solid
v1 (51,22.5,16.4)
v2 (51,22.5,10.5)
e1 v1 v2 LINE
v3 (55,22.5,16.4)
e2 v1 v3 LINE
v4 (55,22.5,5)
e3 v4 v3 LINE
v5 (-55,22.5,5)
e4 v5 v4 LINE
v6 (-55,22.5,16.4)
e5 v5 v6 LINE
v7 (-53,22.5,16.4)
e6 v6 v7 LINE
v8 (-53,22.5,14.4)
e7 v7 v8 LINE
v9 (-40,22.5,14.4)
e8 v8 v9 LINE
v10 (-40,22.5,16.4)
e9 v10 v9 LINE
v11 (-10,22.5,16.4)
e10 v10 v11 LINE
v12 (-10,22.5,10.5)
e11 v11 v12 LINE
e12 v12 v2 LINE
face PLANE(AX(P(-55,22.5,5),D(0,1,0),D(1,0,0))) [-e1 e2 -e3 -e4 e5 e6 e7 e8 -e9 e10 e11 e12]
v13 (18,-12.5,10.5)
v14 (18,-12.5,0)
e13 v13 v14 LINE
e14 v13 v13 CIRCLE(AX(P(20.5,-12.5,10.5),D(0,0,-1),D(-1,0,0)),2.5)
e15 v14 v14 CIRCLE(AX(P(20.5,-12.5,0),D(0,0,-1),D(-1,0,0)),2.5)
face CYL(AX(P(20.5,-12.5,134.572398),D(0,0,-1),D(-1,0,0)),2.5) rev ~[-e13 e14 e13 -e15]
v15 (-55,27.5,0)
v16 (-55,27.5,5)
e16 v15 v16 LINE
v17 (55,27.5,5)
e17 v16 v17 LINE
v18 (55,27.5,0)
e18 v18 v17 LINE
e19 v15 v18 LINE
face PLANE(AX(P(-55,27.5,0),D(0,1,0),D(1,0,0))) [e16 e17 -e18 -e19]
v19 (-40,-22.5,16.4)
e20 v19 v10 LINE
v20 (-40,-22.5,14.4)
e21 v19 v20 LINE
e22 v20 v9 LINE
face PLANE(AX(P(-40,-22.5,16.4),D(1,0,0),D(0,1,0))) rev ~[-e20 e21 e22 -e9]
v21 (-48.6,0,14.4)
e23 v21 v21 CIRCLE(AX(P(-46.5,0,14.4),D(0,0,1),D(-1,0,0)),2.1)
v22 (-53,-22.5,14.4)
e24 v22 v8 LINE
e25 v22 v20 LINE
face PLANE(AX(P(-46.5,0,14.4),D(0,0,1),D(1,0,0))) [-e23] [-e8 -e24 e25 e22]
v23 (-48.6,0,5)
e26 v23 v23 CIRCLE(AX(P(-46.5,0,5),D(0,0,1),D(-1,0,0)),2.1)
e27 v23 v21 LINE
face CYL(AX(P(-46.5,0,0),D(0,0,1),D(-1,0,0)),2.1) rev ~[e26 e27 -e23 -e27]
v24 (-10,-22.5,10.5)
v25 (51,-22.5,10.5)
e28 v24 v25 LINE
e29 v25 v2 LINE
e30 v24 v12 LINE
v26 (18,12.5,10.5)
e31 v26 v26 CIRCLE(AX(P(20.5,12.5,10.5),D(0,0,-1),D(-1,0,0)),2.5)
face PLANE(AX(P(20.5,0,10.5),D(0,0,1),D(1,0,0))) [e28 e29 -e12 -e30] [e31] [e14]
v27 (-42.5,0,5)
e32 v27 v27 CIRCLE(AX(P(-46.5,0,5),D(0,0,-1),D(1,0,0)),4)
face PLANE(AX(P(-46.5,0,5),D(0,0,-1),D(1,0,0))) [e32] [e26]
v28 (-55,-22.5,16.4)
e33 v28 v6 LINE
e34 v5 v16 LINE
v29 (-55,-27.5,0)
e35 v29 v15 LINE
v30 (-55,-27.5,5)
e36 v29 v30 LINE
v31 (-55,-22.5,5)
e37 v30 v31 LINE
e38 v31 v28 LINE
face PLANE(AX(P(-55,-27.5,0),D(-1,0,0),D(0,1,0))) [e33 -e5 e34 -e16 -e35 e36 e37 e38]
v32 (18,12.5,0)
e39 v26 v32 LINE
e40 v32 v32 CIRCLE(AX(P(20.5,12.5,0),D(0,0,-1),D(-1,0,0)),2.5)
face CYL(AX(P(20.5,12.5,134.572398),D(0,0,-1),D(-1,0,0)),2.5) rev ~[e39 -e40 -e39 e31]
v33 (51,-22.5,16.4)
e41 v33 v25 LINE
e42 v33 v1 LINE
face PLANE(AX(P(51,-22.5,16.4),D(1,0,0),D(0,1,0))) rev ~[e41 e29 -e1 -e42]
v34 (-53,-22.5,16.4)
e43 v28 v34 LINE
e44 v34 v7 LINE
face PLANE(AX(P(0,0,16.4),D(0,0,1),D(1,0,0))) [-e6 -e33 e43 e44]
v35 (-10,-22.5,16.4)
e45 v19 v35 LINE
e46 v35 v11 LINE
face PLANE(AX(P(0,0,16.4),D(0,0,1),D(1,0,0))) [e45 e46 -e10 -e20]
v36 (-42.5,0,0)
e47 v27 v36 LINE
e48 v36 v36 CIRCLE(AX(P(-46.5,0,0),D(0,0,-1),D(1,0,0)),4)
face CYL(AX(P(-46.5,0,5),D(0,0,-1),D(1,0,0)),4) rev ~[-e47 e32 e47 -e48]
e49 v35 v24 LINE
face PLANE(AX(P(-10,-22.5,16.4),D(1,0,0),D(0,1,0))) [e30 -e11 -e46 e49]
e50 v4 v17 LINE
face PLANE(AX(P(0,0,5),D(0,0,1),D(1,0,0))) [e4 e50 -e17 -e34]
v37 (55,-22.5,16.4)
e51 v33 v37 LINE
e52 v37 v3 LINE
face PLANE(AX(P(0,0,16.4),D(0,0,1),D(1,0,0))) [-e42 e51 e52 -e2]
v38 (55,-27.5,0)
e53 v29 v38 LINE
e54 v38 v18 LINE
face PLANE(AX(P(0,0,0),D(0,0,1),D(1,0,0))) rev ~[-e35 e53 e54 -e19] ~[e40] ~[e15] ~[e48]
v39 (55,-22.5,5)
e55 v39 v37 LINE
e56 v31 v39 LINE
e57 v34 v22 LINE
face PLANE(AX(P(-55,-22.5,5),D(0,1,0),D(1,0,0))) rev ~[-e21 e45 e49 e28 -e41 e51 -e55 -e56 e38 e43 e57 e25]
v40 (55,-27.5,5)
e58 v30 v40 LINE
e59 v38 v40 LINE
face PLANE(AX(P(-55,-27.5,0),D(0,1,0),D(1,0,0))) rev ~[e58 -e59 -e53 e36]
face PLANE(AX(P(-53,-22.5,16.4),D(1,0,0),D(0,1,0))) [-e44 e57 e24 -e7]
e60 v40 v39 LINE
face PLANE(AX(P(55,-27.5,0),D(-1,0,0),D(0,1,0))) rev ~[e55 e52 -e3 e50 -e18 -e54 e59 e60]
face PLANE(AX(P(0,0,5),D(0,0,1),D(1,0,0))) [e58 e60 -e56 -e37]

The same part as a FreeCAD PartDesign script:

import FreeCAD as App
import Part
import Sketcher


def add_polygon(sketch, points):
    """Adds a closed chain of lines whose ends are joined by coincident constraints."""
    first, n = sketch.GeometryCount, len(points)
    for a, b in zip(points, points[1:] + points[:1]):
        sketch.addGeometry(Part.LineSegment(App.Vector(*a, 0), App.Vector(*b, 0)), False)
    for i in range(n):
        sketch.addConstraint(Sketcher.Constraint("Coincident", first + i, 2, first + (i + 1) % n, 1))

doc = App.newDocument("Part")
params = doc.addObject("Spreadsheet::Sheet", "Params")
for row, (alias, value) in enumerate([
    ("sketch1_width", "110 mm"),
    ("sketch1_height", "55 mm"),
    ("pad1_length", "5 mm"),
    ("sketch2_width", "110 mm"),
    ("sketch2_height", "45 mm"),
    ("pad2_length", "11.4 mm"),
    ("sketch3_width", "13 mm"),
    ("sketch3_height", "45 mm"),
    ("pocket1_length", "2 mm"),
    ("sketch4_width", "61 mm"),
    ("sketch4_height", "45 mm"),
    ("pocket2_length", "5.9 mm"),
    ("sketch5_diameter", "4.2 mm"),
    ("hole_diameter", "4.2 mm"),
    ("hole_cbore_diameter", "8 mm"),
    ("hole_cbore_depth", "5 mm"),
    ("sketch6_diameter", "5 mm"),
    ("hole2_diameter", "5 mm"),
], start=1):
    params.set(f"A{row}", alias)
    params.set(f"B{row}", "=" + value)
    params.setAlias(f"B{row}", alias)

body = doc.addObject("PartDesign::Body", "Body")

sketch1 = doc.addObject("Sketcher::SketchObject", "Sketch")
body.addObject(sketch1)
sketch1.AttachmentSupport = (doc.XY_Plane, [""])
sketch1.MapMode = "FlatFace"
add_polygon(sketch1, [(-55, 28), (-55, -28), (55, -28), (55, 28)])
sketch1.addConstraint(Sketcher.Constraint("Vertical", 0))
sketch1.addConstraint(Sketcher.Constraint("Horizontal", 1))
sketch1.addConstraint(Sketcher.Constraint("Vertical", 2))
sketch1.addConstraint(Sketcher.Constraint("Horizontal", 3))
sketch1.addConstraint(Sketcher.Constraint("Symmetric", 0, 2, 2, 2, -1, 1))
sketch1.addConstraint(Sketcher.Constraint("DistanceX", 1, 1, 1, 2, 110.0))
sketch1.addConstraint(Sketcher.Constraint("DistanceY", 0, 2, 0, 1, 55.0))
sketch1.setExpression("Constraints[9]", "Params.sketch1_width")
sketch1.setExpression("Constraints[10]", "Params.sketch1_height")
pad1 = doc.addObject("PartDesign::Pad", "Pad")
body.addObject(pad1)
pad1.Profile = sketch1
pad1.setExpression("Length", "Params.pad1_length")

sketch2 = doc.addObject("Sketcher::SketchObject", "Sketch001")
body.addObject(sketch2)
sketch2.AttachmentSupport = (doc.XY_Plane, [""])
sketch2.MapMode = "FlatFace"
sketch2.AttachmentOffset = App.Placement(App.Vector(0, 0, 5), App.Rotation())
add_polygon(sketch2, [(-55, 22), (-55, -22), (55, -22), (55, 22)])
sketch2.addConstraint(Sketcher.Constraint("Vertical", 0))
sketch2.addConstraint(Sketcher.Constraint("Horizontal", 1))
sketch2.addConstraint(Sketcher.Constraint("Vertical", 2))
sketch2.addConstraint(Sketcher.Constraint("Horizontal", 3))
sketch2.addConstraint(Sketcher.Constraint("Symmetric", 0, 2, 2, 2, -1, 1))
sketch2.addConstraint(Sketcher.Constraint("DistanceX", 1, 1, 1, 2, 110.0))
sketch2.addConstraint(Sketcher.Constraint("DistanceY", 0, 2, 0, 1, 45.0))
sketch2.setExpression("Constraints[9]", "Params.sketch2_width")
sketch2.setExpression("Constraints[10]", "Params.sketch2_height")
pad2 = doc.addObject("PartDesign::Pad", "Pad001")
body.addObject(pad2)
pad2.Profile = sketch2
pad2.setExpression("Length", "Params.pad2_length")

sketch3 = doc.addObject("Sketcher::SketchObject", "Sketch002")
body.addObject(sketch3)
sketch3.AttachmentSupport = (doc.XY_Plane, [""])
sketch3.MapMode = "FlatFace"
sketch3.AttachmentOffset = App.Placement(App.Vector(0, 0, 16.4), App.Rotation())
add_polygon(sketch3, [(-53, 22), (-53, -22), (-40, -22), (-40, 22)])
sketch3.addConstraint(Sketcher.Constraint("Vertical", 0))
sketch3.addConstraint(Sketcher.Constraint("Horizontal", 1))
sketch3.addConstraint(Sketcher.Constraint("Vertical", 2))
sketch3.addConstraint(Sketcher.Constraint("Horizontal", 3))
sketch3.addConstraint(Sketcher.Constraint("DistanceX", 1, 1, 1, 2, 13.0))
sketch3.addConstraint(Sketcher.Constraint("DistanceY", 0, 2, 0, 1, 45.0))
sketch3.addConstraint(Sketcher.Constraint("DistanceX", 0, 2, -1, 1, 53.0))
sketch3.addConstraint(Sketcher.Constraint("DistanceY", 0, 2, -1, 1, 22.5))
sketch3.setExpression("Constraints[8]", "Params.sketch3_width")
sketch3.setExpression("Constraints[9]", "Params.sketch3_height")
pocket1 = doc.addObject("PartDesign::Pocket", "Pocket")
body.addObject(pocket1)
pocket1.Profile = sketch3
pocket1.setExpression("Length", "Params.pocket1_length")

sketch4 = doc.addObject("Sketcher::SketchObject", "Sketch003")
body.addObject(sketch4)
sketch4.AttachmentSupport = (doc.XY_Plane, [""])
sketch4.MapMode = "FlatFace"
sketch4.AttachmentOffset = App.Placement(App.Vector(0, 0, 16.4), App.Rotation())
add_polygon(sketch4, [(-10, 22), (-10, -22), (51, -22), (51, 22)])
sketch4.addConstraint(Sketcher.Constraint("Vertical", 0))
sketch4.addConstraint(Sketcher.Constraint("Horizontal", 1))
sketch4.addConstraint(Sketcher.Constraint("Vertical", 2))
sketch4.addConstraint(Sketcher.Constraint("Horizontal", 3))
sketch4.addConstraint(Sketcher.Constraint("DistanceX", 1, 1, 1, 2, 61.0))
sketch4.addConstraint(Sketcher.Constraint("DistanceY", 0, 2, 0, 1, 45.0))
sketch4.addConstraint(Sketcher.Constraint("DistanceX", 0, 2, -1, 1, 10.0))
sketch4.addConstraint(Sketcher.Constraint("DistanceY", 0, 2, -1, 1, 22.5))
sketch4.setExpression("Constraints[8]", "Params.sketch4_width")
sketch4.setExpression("Constraints[9]", "Params.sketch4_height")
pocket2 = doc.addObject("PartDesign::Pocket", "Pocket001")
body.addObject(pocket2)
pocket2.Profile = sketch4
pocket2.setExpression("Length", "Params.pocket2_length")

sketch5 = doc.addObject("Sketcher::SketchObject", "Sketch004")
body.addObject(sketch5)
sketch5.AttachmentSupport = (doc.XY_Plane, [""])
sketch5.MapMode = "FlatFace"
sketch5.addGeometry(Part.Circle(App.Vector(-46.5, 0, 0), App.Vector(0, 0, 1), 2.1), False)
sketch5.addConstraint(Sketcher.Constraint("PointOnObject", 0, 3, -1))
sketch5.addConstraint(Sketcher.Constraint("Diameter", 0, 4.2))
sketch5.addConstraint(Sketcher.Constraint("DistanceX", 0, 3, -1, 1, 46.5))
sketch5.setExpression("Constraints[1]", "Params.sketch5_diameter")
doc.recompute()
hole = doc.addObject("PartDesign::Hole", "Hole")
body.addObject(hole)
hole.Profile = sketch5
hole.ThreadType = "None"
hole.setExpression("Diameter", "Params.hole_diameter")
hole.DepthType = "ThroughAll"
hole.HoleCutType = "Counterbore"
hole.setExpression("HoleCutDiameter", "Params.hole_cbore_diameter")
hole.setExpression("HoleCutDepth", "Params.hole_cbore_depth")
hole.Reversed = True

sketch6 = doc.addObject("Sketcher::SketchObject", "Sketch005")
body.addObject(sketch6)
sketch6.AttachmentSupport = (doc.XY_Plane, [""])
sketch6.MapMode = "FlatFace"
sketch6.AttachmentOffset = App.Placement(App.Vector(0, 0, 10.5), App.Rotation())
sketch6.addGeometry(Part.Circle(App.Vector(20.5, 12.5, 0), App.Vector(0, 0, 1), 2.5), False)
sketch6.addGeometry(Part.Circle(App.Vector(20.5, -12.5, 0), App.Vector(0, 0, 1), 2.5), False)
sketch6.addConstraint(Sketcher.Constraint("Equal", 0, 1))
sketch6.addConstraint(Sketcher.Constraint("Symmetric", 0, 3, 1, 3, -1))
sketch6.addConstraint(Sketcher.Constraint("Diameter", 0, 5.0))
sketch6.addConstraint(Sketcher.Constraint("DistanceY", 1, 3, 0, 3, 25.0))
sketch6.addConstraint(Sketcher.Constraint("DistanceX", -1, 1, 0, 3, 20.5))
sketch6.setExpression("Constraints[2]", "Params.sketch6_diameter")
doc.recompute()
hole2 = doc.addObject("PartDesign::Hole", "Hole001")
body.addObject(hole2)
hole2.Profile = sketch6
hole2.ThreadType = "None"
hole2.setExpression("Diameter", "Params.hole2_diameter")
hole2.DepthType = "ThroughAll"

doc.recompute()
